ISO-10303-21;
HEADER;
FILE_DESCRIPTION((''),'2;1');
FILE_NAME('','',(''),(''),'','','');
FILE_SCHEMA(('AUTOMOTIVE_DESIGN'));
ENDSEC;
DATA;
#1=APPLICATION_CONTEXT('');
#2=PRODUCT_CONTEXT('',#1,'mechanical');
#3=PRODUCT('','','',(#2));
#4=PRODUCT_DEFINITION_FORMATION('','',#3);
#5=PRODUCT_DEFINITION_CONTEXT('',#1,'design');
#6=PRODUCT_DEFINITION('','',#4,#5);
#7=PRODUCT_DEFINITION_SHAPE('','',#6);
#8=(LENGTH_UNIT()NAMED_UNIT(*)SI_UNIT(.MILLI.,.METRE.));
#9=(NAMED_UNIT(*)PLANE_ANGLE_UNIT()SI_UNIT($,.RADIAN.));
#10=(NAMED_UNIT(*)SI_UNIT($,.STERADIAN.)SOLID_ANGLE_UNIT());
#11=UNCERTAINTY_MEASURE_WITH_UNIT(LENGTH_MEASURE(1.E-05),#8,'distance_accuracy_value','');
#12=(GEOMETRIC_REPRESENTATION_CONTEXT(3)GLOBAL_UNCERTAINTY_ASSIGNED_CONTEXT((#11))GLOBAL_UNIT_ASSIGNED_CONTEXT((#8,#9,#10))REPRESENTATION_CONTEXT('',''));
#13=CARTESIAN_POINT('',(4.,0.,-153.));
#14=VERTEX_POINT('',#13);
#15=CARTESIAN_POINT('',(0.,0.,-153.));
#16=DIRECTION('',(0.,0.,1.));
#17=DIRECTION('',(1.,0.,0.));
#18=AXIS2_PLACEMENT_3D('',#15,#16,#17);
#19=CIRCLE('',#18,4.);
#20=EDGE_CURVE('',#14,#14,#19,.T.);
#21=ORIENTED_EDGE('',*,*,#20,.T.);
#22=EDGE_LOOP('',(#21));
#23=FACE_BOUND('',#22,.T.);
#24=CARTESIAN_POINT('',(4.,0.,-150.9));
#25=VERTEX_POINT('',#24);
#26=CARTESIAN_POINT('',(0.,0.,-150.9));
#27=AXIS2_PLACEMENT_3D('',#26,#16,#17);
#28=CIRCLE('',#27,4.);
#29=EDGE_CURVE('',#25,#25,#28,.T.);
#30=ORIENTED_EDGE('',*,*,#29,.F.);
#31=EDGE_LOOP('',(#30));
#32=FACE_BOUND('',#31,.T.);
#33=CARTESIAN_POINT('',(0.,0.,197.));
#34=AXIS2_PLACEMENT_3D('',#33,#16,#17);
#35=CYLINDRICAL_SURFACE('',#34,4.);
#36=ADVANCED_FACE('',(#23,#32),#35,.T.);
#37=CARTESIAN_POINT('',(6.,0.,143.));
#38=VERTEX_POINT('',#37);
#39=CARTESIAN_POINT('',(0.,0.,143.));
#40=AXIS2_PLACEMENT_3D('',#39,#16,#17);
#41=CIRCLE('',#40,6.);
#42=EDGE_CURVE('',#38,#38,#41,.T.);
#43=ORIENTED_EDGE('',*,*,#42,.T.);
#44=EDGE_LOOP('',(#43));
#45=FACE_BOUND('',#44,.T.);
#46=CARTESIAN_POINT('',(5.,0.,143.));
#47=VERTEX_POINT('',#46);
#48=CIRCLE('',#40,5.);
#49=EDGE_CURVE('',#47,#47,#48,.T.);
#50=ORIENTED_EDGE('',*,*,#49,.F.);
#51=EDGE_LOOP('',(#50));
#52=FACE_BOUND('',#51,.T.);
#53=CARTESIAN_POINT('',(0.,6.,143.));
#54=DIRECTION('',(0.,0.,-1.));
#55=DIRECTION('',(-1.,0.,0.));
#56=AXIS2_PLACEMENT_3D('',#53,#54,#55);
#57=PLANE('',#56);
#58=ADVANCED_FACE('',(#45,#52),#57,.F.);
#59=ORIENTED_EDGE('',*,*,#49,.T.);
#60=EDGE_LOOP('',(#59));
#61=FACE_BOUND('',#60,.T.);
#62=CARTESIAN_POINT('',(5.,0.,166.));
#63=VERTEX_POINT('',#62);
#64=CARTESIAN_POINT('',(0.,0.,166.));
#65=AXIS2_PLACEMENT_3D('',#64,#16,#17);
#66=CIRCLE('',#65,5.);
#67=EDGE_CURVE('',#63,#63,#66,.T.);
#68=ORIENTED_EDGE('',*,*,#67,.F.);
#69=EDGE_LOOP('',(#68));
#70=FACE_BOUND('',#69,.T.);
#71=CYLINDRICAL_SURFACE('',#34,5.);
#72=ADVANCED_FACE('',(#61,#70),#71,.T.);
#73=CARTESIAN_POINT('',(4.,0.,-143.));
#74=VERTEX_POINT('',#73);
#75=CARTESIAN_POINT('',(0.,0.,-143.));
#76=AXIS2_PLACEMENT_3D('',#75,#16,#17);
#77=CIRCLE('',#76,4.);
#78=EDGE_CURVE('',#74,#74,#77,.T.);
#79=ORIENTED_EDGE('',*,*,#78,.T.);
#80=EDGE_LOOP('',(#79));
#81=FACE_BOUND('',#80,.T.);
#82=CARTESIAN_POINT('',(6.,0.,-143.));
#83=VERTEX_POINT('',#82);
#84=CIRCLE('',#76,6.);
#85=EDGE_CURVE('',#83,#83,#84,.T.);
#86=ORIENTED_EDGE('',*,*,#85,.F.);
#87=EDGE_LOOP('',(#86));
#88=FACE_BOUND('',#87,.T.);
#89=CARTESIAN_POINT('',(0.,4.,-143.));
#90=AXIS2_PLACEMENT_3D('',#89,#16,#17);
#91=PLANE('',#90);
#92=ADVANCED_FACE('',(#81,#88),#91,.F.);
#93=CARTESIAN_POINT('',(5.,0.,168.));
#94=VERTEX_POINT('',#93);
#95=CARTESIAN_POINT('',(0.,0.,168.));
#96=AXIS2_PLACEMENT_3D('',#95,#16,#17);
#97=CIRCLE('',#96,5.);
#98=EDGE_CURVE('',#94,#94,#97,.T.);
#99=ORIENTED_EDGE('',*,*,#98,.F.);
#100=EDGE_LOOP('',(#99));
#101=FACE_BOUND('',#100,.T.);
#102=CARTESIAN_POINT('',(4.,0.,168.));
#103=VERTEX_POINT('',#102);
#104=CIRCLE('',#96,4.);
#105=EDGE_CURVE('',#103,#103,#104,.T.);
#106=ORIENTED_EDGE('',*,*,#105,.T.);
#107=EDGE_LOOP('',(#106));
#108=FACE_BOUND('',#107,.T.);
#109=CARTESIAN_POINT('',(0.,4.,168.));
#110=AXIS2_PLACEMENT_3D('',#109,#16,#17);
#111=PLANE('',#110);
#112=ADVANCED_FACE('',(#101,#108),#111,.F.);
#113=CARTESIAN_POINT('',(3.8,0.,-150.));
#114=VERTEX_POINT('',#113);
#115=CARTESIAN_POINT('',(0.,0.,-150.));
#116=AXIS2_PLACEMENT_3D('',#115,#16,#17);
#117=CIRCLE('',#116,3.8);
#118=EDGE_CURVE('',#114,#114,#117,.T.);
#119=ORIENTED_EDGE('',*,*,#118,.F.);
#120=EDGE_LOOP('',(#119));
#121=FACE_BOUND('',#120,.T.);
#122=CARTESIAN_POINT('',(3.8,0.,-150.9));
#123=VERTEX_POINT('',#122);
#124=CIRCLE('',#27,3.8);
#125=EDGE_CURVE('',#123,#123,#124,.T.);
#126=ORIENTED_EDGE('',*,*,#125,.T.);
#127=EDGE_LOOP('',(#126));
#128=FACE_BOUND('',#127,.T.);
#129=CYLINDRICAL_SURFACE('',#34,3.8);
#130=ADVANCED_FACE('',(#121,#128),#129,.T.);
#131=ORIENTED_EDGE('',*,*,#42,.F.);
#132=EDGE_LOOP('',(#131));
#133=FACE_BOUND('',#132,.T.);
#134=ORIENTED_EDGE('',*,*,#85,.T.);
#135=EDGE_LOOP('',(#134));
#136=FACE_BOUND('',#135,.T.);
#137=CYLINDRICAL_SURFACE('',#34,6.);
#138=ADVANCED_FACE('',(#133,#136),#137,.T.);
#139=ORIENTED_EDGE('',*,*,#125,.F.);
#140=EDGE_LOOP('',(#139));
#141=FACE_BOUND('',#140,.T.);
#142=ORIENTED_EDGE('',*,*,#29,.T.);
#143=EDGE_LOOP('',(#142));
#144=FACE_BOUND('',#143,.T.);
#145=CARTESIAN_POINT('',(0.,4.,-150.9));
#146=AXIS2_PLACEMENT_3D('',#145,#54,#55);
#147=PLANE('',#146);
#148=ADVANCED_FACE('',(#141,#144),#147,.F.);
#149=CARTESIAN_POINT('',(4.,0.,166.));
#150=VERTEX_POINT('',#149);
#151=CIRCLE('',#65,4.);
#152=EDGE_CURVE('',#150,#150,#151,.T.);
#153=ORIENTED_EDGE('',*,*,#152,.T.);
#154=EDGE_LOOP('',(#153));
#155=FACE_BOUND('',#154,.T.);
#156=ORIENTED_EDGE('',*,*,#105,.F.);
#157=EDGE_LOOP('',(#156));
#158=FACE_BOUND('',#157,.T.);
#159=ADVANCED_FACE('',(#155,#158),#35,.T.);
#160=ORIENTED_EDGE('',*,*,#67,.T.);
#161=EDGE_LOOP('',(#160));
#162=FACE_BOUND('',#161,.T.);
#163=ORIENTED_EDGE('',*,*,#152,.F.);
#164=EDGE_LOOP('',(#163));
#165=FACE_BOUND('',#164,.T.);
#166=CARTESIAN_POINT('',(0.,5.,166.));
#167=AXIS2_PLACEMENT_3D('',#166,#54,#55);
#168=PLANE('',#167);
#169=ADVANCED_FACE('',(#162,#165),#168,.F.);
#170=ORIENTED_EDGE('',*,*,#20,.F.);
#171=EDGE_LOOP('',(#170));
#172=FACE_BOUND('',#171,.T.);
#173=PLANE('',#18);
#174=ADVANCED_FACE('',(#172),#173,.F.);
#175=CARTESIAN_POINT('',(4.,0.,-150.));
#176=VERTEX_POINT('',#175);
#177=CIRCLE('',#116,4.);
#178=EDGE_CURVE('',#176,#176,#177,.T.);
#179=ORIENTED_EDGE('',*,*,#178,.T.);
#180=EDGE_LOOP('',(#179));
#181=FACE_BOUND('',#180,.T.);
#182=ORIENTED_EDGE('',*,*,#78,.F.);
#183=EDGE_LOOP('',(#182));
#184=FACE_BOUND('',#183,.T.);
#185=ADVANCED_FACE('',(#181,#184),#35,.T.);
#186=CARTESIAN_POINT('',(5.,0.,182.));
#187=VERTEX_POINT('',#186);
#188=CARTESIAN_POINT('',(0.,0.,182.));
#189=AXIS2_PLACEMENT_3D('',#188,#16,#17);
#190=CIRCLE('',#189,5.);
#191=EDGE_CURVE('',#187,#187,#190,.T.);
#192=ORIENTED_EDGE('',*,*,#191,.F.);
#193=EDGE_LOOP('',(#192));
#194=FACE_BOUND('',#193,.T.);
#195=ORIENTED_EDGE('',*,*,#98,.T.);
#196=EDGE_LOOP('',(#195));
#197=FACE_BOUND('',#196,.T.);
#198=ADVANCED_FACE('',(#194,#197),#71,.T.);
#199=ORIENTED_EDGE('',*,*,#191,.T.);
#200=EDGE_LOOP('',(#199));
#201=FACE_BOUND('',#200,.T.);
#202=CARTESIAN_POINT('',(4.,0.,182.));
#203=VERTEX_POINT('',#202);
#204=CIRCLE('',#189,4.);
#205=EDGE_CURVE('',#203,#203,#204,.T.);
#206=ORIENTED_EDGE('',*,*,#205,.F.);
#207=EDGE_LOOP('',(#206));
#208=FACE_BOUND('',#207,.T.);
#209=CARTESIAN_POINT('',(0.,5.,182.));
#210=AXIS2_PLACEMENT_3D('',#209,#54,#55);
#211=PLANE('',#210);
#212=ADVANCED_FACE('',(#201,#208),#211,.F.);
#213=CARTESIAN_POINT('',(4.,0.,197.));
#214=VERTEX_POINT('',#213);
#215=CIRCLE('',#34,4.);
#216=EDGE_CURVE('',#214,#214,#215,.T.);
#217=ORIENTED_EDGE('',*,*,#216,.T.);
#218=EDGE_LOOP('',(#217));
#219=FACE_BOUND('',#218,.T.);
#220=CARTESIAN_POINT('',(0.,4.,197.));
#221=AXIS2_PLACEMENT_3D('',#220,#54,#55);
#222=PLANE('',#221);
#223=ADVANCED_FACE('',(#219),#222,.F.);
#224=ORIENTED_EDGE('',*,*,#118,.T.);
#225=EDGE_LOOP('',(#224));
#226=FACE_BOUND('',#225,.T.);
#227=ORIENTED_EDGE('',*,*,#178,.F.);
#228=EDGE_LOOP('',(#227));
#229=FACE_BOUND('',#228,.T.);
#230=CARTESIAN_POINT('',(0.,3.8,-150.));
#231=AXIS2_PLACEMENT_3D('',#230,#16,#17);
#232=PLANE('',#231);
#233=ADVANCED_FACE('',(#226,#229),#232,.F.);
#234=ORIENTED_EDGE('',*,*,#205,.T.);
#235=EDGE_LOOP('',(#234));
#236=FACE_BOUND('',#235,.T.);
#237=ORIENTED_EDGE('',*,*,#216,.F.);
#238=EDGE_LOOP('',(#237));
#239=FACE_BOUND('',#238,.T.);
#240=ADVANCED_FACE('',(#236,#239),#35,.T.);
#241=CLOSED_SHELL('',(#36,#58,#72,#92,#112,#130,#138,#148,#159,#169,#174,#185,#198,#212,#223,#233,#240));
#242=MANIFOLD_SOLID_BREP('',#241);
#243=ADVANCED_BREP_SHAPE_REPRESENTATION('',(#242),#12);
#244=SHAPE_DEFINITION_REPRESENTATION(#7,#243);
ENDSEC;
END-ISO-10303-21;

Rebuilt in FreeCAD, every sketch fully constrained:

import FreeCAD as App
import Part
import Sketcher
from FreeCAD import Vector
Q = App.Units.Quantity

doc = App.newDocument("Part")
params = doc.addObject("Spreadsheet::Sheet", "Params")
for row, (alias, value) in enumerate([
    ("sketch1_width", "4 mm"),
    ("sketch1_width2", "2 mm"),
    ("sketch1_height", "350 mm"),
    ("sketch1_height2", "7 mm"),
    ("sketch1_height3", "286 mm"),
    ("revolution_angle", "360 deg"),
], start=1):
    params.set(f"A{row}", alias)
    params.set(f"B{row}", "=" + value)
    params.setAlias(f"B{row}", alias)

body = doc.addObject("PartDesign::Body", "Body")

sketch1 = body.newObject("Sketcher::SketchObject", "Sketch")
sketch1.AttachmentSupport = (doc.getObject("YZ_Plane"), [""])
sketch1.MapMode = "FlatFace"
sketch1.addGeometry(Part.LineSegment(Vector(0, 197, 0), Vector(0, -153, 0)), False)
sketch1.addGeometry(Part.LineSegment(Vector(0, -153, 0), Vector(4, -153, 0)), False)
sketch1.addGeometry(Part.LineSegment(Vector(4, -153, 0), Vector(4, -150.9, 0)), False)
sketch1.addGeometry(Part.LineSegment(Vector(4, -150.9, 0), Vector(3.8, -150.9, 0)), False)
sketch1.addGeometry(Part.LineSegment(Vector(3.8, -150.9, 0), Vector(3.8, -150, 0)), False)
sketch1.addGeometry(Part.LineSegment(Vector(3.8, -150, 0), Vector(4, -150, 0)), False)
sketch1.addGeometry(Part.LineSegment(Vector(4, -150, 0), Vector(4, -143, 0)), False)
sketch1.addGeometry(Part.LineSegment(Vector(4, -143, 0), Vector(6, -143, 0)), False)
sketch1.addGeometry(Part.LineSegment(Vector(6, -143, 0), Vector(6, 143, 0)), False)
sketch1.addGeometry(Part.LineSegment(Vector(6, 143, 0), Vector(5, 143, 0)), False)
sketch1.addGeometry(Part.LineSegment(Vector(5, 143, 0), Vector(5, 166, 0)), False)
sketch1.addGeometry(Part.LineSegment(Vector(5, 166, 0), Vector(4, 166, 0)), False)
sketch1.addGeometry(Part.LineSegment(Vector(4, 166, 0), Vector(4, 168, 0)), False)
sketch1.addGeometry(Part.LineSegment(Vector(4, 168, 0), Vector(5, 168, 0)), False)
sketch1.addGeometry(Part.LineSegment(Vector(5, 168, 0), Vector(5, 182, 0)), False)
sketch1.addGeometry(Part.LineSegment(Vector(5, 182, 0), Vector(4, 182, 0)), False)
sketch1.addGeometry(Part.LineSegment(Vector(4, 182, 0), Vector(4, 197, 0)), False)
sketch1.addGeometry(Part.LineSegment(Vector(4, 197, 0), Vector(0, 197, 0)), False)
sketch1.addConstraint(Sketcher.Constraint("Coincident", 0, 2, 1, 1))
sketch1.addConstraint(Sketcher.Constraint("Coincident", 1, 2, 2, 1))
sketch1.addConstraint(Sketcher.Constraint("Coincident", 2, 2, 3, 1))
sketch1.addConstraint(Sketcher.Constraint("Coincident", 3, 2, 4, 1))
sketch1.addConstraint(Sketcher.Constraint("Coincident", 4, 2, 5, 1))
sketch1.addConstraint(Sketcher.Constraint("Coincident", 5, 2, 6, 1))
sketch1.addConstraint(Sketcher.Constraint("Coincident", 6, 2, 7, 1))
sketch1.addConstraint(Sketcher.Constraint("Coincident", 7, 2, 8, 1))
sketch1.addConstraint(Sketcher.Constraint("Coincident", 8, 2, 9, 1))
sketch1.addConstraint(Sketcher.Constraint("Coincident", 9, 2, 10, 1))
sketch1.addConstraint(Sketcher.Constraint("Coincident", 10, 2, 11, 1))
sketch1.addConstraint(Sketcher.Constraint("Coincident", 11, 2, 12, 1))
sketch1.addConstraint(Sketcher.Constraint("Coincident", 12, 2, 13, 1))
sketch1.addConstraint(Sketcher.Constraint("Coincident", 13, 2, 14, 1))
sketch1.addConstraint(Sketcher.Constraint("Coincident", 14, 2, 15, 1))
sketch1.addConstraint(Sketcher.Constraint("Coincident", 15, 2, 16, 1))
sketch1.addConstraint(Sketcher.Constraint("Coincident", 16, 2, 17, 1))
sketch1.addConstraint(Sketcher.Constraint("Coincident", 17, 2, 0, 1))
sketch1.addConstraint(Sketcher.Constraint("Vertical", 0))
sketch1.addConstraint(Sketcher.Constraint("Horizontal", 1))
sketch1.addConstraint(Sketcher.Constraint("Vertical", 2))
sketch1.addConstraint(Sketcher.Constraint("Horizontal", 3))
sketch1.addConstraint(Sketcher.Constraint("Vertical", 4))
sketch1.addConstraint(Sketcher.Constraint("Horizontal", 5))
sketch1.addConstraint(Sketcher.Constraint("Vertical", 6))
sketch1.addConstraint(Sketcher.Constraint("Horizontal", 7))
sketch1.addConstraint(Sketcher.Constraint("Vertical", 8))
sketch1.addConstraint(Sketcher.Constraint("Horizontal", 9))
sketch1.addConstraint(Sketcher.Constraint("Vertical", 10))
sketch1.addConstraint(Sketcher.Constraint("Horizontal", 11))
sketch1.addConstraint(Sketcher.Constraint("Vertical", 12))
sketch1.addConstraint(Sketcher.Constraint("Horizontal", 13))
sketch1.addConstraint(Sketcher.Constraint("Vertical", 14))
sketch1.addConstraint(Sketcher.Constraint("Horizontal", 15))
sketch1.addConstraint(Sketcher.Constraint("Vertical", 16))
sketch1.addConstraint(Sketcher.Constraint("Horizontal", 17))
sketch1.addConstraint(Sketcher.Constraint("PointOnObject", 0, 2, -2))
sketch1.addConstraint(Sketcher.Constraint("Vertical", 2, 2, 5, 2))
sketch1.addConstraint(Sketcher.Constraint("Vertical", 6, 2, 11, 2))
sketch1.addConstraint(Sketcher.Constraint("Vertical", 10, 2, 13, 2))
sketch1.addConstraint(Sketcher.Constraint("Vertical", 12, 2, 15, 2))
sketch1.addConstraint(Sketcher.Constraint("Equal", 9, 11))
sketch1.addConstraint(Sketcher.Constraint("Equal", 7, 12))
sketch1.addConstraint(Sketcher.Constraint("DistanceX", 1, 1, 1, 2, Q("4 mm")))
sketch1.addConstraint(Sketcher.Constraint("DistanceX", 7, 1, 7, 2, Q("2 mm")))
sketch1.addConstraint(Sketcher.Constraint("DistanceY", 0, 2, 0, 1, Q("350 mm")))
sketch1.addConstraint(Sketcher.Constraint("DistanceY", 6, 1, 6, 2, Q("7 mm")))
sketch1.addConstraint(Sketcher.Constraint("DistanceY", 8, 1, 8, 2, Q("286 mm")))
sketch1.addConstraint(Sketcher.Constraint("DistanceY", 10, 1, 10, 2, Q("23 mm")))
sketch1.addConstraint(Sketcher.Constraint("DistanceY", 14, 1, 14, 2, Q("14 mm")))
sketch1.addConstraint(Sketcher.Constraint("DistanceY", 16, 1, 16, 2, Q("15 mm")))
sketch1.addConstraint(Sketcher.Constraint("DistanceX", 3, 2, 3, 1, Q("0.2 mm")))
sketch1.addConstraint(Sketcher.Constraint("DistanceY", 2, 1, 2, 2, Q("2.1 mm")))
sketch1.addConstraint(Sketcher.Constraint("DistanceY", 0, 2, -1, 1, Q("153 mm")))
sketch1.setExpression("Constraints[43]", "Params.sketch1_width")
sketch1.setExpression("Constraints[44]", "Params.sketch1_width2")
sketch1.setExpression("Constraints[45]", "Params.sketch1_height")
sketch1.setExpression("Constraints[46]", "Params.sketch1_height2")
sketch1.setExpression("Constraints[47]", "Params.sketch1_height3")
revolution = body.newObject("PartDesign::Revolution", "Revolution")
revolution.Profile = sketch1
revolution.ReferenceAxis = (sketch1, ["V_Axis"])
revolution.setExpression("Angle", "Params.revolution_angle")

doc.recompute()
